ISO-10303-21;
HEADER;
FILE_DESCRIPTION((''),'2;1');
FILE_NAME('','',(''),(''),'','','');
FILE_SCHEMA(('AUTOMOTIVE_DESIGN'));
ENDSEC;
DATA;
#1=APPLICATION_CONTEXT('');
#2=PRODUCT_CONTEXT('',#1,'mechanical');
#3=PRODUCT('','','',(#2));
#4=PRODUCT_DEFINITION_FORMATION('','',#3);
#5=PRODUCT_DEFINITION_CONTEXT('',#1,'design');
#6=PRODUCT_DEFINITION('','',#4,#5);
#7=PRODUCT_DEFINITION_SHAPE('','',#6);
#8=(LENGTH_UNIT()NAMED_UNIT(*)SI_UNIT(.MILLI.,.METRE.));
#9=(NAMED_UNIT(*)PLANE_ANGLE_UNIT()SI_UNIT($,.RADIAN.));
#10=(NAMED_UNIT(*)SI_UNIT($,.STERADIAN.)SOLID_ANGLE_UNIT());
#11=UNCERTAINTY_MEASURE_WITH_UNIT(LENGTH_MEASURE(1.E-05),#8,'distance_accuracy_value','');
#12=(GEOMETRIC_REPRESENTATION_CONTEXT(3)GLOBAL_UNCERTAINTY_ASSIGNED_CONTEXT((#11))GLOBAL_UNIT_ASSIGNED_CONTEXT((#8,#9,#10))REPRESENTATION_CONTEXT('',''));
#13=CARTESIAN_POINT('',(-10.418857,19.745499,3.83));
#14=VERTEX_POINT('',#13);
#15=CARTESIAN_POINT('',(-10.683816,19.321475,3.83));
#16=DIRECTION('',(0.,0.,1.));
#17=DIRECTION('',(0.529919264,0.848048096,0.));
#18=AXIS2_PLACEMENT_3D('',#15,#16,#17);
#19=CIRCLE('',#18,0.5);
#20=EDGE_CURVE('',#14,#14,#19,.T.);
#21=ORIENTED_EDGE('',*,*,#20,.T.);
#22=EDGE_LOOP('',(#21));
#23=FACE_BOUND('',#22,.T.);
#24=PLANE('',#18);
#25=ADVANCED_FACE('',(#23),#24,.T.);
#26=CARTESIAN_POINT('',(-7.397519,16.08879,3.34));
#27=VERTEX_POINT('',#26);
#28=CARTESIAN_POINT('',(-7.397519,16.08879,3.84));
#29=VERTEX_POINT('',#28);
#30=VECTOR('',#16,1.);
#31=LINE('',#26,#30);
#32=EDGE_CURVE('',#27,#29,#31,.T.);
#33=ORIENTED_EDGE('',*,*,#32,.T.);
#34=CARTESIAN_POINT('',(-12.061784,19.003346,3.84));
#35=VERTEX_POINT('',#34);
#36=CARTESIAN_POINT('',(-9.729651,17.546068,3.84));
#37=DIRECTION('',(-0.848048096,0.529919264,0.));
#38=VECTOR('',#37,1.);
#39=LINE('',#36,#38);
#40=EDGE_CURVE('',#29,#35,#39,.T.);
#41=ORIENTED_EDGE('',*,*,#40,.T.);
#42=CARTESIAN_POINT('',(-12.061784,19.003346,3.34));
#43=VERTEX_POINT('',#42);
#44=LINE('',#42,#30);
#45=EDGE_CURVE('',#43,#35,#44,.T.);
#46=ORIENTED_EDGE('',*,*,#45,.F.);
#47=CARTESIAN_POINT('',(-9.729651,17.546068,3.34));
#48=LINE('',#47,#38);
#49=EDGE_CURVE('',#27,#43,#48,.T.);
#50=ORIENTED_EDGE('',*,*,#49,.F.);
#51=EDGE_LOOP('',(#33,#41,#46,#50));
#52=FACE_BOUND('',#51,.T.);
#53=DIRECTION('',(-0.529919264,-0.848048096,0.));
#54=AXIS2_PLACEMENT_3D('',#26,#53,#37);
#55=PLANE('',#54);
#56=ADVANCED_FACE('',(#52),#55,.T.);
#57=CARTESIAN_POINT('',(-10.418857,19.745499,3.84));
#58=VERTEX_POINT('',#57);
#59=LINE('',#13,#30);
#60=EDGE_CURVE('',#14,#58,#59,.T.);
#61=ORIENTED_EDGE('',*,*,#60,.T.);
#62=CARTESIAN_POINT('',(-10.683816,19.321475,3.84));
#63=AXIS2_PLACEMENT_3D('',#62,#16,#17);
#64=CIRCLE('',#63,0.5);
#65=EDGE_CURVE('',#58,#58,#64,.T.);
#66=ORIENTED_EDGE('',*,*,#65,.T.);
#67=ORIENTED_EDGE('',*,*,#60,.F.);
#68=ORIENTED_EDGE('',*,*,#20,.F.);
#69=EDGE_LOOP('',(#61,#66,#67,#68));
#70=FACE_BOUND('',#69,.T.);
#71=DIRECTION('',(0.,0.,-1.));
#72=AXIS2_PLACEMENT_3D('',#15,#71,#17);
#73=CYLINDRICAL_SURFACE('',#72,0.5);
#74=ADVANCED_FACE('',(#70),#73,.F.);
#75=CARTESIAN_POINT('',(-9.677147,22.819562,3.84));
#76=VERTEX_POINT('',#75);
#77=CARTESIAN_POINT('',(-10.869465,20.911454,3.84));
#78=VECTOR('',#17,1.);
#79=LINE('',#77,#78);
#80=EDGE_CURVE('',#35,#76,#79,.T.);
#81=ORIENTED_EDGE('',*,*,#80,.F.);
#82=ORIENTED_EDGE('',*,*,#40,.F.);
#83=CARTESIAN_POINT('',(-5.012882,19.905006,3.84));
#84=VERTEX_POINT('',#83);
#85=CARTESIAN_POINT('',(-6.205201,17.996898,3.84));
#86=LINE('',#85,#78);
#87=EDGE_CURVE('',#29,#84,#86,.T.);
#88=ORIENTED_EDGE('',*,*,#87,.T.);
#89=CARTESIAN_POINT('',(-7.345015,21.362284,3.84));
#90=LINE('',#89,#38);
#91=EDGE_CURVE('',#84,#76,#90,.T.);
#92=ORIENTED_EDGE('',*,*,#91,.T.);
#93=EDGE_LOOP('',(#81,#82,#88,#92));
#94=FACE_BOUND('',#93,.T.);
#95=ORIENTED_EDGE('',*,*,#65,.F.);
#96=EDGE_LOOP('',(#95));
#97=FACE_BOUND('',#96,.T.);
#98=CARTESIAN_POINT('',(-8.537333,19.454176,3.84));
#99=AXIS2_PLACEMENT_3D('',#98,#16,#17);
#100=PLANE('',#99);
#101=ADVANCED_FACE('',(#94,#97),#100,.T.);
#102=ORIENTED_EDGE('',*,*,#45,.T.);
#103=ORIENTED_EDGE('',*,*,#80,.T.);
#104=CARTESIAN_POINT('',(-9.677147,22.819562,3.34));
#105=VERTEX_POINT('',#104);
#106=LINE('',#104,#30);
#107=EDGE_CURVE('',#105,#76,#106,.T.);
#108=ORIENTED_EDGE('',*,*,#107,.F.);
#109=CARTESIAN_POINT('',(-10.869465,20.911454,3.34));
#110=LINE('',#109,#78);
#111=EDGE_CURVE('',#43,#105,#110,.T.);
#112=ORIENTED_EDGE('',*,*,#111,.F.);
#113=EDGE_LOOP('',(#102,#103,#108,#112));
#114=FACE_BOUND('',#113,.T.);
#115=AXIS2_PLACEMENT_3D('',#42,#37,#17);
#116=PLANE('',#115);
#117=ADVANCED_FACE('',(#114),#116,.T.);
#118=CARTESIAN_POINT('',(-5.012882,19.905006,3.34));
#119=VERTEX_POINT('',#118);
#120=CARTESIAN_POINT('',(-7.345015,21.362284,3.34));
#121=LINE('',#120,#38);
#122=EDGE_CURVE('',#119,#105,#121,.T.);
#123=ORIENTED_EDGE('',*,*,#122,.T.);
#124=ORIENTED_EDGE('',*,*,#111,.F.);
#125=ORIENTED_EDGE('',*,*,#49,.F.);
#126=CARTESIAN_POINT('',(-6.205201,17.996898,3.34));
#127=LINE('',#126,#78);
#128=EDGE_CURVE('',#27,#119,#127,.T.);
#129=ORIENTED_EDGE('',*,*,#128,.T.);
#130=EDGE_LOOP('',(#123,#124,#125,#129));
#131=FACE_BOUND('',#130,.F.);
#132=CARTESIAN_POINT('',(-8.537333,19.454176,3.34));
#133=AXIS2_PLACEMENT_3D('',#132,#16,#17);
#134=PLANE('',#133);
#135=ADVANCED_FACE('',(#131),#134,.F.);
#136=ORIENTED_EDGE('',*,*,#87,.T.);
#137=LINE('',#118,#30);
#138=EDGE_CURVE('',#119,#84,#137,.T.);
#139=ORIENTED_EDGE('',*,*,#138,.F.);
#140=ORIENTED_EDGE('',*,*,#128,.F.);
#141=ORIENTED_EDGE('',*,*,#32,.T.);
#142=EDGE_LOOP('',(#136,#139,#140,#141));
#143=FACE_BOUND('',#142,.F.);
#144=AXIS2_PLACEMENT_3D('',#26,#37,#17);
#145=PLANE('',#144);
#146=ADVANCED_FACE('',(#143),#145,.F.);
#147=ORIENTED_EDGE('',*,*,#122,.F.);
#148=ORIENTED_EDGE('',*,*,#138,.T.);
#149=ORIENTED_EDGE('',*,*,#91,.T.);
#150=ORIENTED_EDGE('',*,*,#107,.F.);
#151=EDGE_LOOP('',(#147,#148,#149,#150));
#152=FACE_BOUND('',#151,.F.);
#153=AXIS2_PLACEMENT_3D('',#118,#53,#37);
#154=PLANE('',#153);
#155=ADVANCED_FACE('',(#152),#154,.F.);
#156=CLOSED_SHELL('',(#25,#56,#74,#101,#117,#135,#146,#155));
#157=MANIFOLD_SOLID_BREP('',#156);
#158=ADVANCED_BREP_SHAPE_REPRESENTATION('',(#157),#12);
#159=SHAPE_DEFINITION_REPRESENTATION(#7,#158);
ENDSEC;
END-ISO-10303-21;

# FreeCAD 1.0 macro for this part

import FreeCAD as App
import Part
import Sketcher
from FreeCAD import Vector
Q = App.Units.Quantity


def add_polygon(sketch, points):
    """Adds a closed chain of lines whose ends are joined by coincident constraints."""
    first, n = sketch.GeometryCount, len(points)
    for a, b in zip(points, points[1:] + points[:1]):
        sketch.addGeometry(Part.LineSegment(App.Vector(*a, 0), App.Vector(*b, 0)), False)
    for i in range(n):
        sketch.addConstraint(Sketcher.Constraint("Coincident", first + i, 2, first + (i + 1) % n, 1))

doc = App.newDocument("Part")
params = doc.addObject("Spreadsheet::Sheet", "Params")
for row, (alias, value) in enumerate([
    ("sketch1_diameter", "1 mm"),
    ("pad1_length", "0.01 mm"),
    ("sketch2_width", "4.5 mm"),
    ("sketch2_height", "5.5 mm"),
    ("pad2_length", "0.5 mm"),
], start=1):
    params.set(f"A{row}", alias)
    params.set(f"B{row}", "=" + value)
    params.setAlias(f"B{row}", alias)

body = doc.addObject("PartDesign::Body", "Body")

sketch1 = body.newObject("Sketcher::SketchObject", "Sketch")
sketch1.AttachmentSupport = (doc.getObject("XY_Plane"), [""])
sketch1.MapMode = "FlatFace"
sketch1.AttachmentOffset = App.Placement(Vector(0, 0, 0.49), App.Rotation())
sketch1.addGeometry(Part.Circle(Vector(1, 4.5, 0), Vector(0, 0, 1), 0.5), False)
sketch1.addConstraint([
    Sketcher.Constraint("Diameter", 0, Q("1 mm")),
    Sketcher.Constraint("DistanceX", -1, 1, 0, 3, Q("1 mm")),
    Sketcher.Constraint("DistanceY", -1, 1, 0, 3, Q("4.5 mm")),
])
sketch1.setExpression("Constraints[0]", "Params.sketch1_diameter")
pad1 = body.newObject("PartDesign::Pad", "Pad")
pad1.Profile = sketch1
pad1.setExpression("Length", "Params.pad1_length")
body2 = doc.addObject("PartDesign::Body", "Body001")

sketch2 = body2.newObject("Sketcher::SketchObject", "Sketch001")
sketch2.AttachmentSupport = (doc.getObject("XY_Plane001"), [""])
sketch2.MapMode = "FlatFace"
add_polygon(sketch2, [(0, 5.5), (0, 0), (4.5, 0), (4.5, 5.5)])
sketch2.addConstraint([
    Sketcher.Constraint("Vertical", 0),
    Sketcher.Constraint("Horizontal", 1),
    Sketcher.Constraint("Vertical", 2),
    Sketcher.Constraint("Horizontal", 3),
    Sketcher.Constraint("Coincident", 0, 2, -1, 1),
    Sketcher.Constraint("DistanceX", 1, 1, 1, 2, Q("4.5 mm")),
    Sketcher.Constraint("DistanceY", 0, 2, 0, 1, Q("5.5 mm")),
])
sketch2.setExpression("Constraints[9]", "Params.sketch2_width")
sketch2.setExpression("Constraints[10]", "Params.sketch2_height")
pad2 = body2.newObject("PartDesign::Pad", "Pad001")
pad2.Profile = sketch2
pad2.setExpression("Length", "Params.pad2_length")
doc.recompute()

boolean = body2.newObject("PartDesign::Boolean", "Boolean")
boolean.Type = "Cut"
boolean.addObjects([body])
body3 = doc.addObject("PartDesign::Body", "Body002")
doc.recompute()

body2.Placement = App.Placement(Vector(-7.397519, 16.08879, 3.34), App.Rotation(Vector(0, 0, 1), 58))
boolean2 = body3.newObject("PartDesign::Boolean", "Boolean001")
boolean2.Type = "Fuse"
boolean2.addObjects([body2])

doc.recompute()
